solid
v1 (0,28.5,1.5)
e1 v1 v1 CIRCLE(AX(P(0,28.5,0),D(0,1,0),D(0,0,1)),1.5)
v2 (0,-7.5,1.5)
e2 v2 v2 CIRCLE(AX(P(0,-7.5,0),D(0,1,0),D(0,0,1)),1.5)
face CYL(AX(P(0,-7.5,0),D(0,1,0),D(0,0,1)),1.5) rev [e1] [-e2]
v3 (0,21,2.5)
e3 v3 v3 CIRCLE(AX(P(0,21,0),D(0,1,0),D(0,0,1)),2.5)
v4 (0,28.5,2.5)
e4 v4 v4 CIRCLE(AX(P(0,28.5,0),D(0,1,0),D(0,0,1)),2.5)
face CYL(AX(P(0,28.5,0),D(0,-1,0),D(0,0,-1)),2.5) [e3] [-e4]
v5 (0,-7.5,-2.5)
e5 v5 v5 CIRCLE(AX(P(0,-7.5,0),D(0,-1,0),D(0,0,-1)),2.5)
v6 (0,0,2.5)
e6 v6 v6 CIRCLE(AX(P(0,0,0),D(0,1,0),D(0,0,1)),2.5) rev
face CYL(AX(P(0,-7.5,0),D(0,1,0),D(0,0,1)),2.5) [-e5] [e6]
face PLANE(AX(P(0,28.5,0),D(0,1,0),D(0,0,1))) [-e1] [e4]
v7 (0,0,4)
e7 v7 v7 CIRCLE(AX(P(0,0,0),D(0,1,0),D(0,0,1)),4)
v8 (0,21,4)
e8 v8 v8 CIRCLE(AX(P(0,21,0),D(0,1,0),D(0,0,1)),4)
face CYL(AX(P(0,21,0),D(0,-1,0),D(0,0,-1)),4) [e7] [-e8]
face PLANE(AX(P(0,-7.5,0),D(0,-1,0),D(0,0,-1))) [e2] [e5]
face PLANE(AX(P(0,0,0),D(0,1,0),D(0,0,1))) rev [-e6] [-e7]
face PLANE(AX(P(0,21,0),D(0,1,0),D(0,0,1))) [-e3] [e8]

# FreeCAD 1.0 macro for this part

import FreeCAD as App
import Part
import Sketcher
Q = App.Units.Quantity

doc = App.newDocument("Part")
params = doc.addObject("Spreadsheet::Sheet", "Params")
for row, (alias, value) in enumerate([
    ("sketch1_diameter", "8 mm"),
    ("sketch1_diameter2", "2.5 mm"),
    ("pad1_length", "21 mm"),
    ("sketch2_diameter", "5 mm"),
    ("pad2_length", "7.5 mm"),
    ("sketch3_diameter", "5 mm"),
    ("pad3_length", "7.5 mm"),
    ("sketch4_diameter", "3 mm"),
], start=1):
    params.set(f"A{row}", alias)
    params.set(f"B{row}", "=" + value)
    params.setAlias(f"B{row}", alias)

body = doc.addObject("PartDesign::Body", "Body")

sketch1 = body.newObject("Sketcher::SketchObject", "Sketch")
sketch1.AttachmentSupport = (doc.getObject("XZ_Plane"), [""])
sketch1.MapMode = "FlatFace"
sketch1.addGeometry(Part.Circle(App.Vector(0, 0, 0), App.Vector(0, 0, 1), 4), False)
sketch1.addGeometry(Part.Circle(App.Vector(0, 0, 0), App.Vector(0, 0, 1), 1.2), False)
sketch1.addConstraint(Sketcher.Constraint("Coincident", 0, 3, -1, 1))
sketch1.addConstraint(Sketcher.Constraint("Coincident", 1, 3, -1, 1))
sketch1.addConstraint(Sketcher.Constraint("Diameter", 0, Q("8 mm")))
sketch1.addConstraint(Sketcher.Constraint("Diameter", 1, Q("2.5 mm")))
sketch1.setExpression("Constraints[2]", "Params.sketch1_diameter")
sketch1.setExpression("Constraints[3]", "Params.sketch1_diameter2")
pad1 = body.newObject("PartDesign::Pad", "Pad")
pad1.Profile = sketch1
pad1.setExpression("Length", "Params.pad1_length")
pad1.Reversed = True

sketch2 = body.newObject("Sketcher::SketchObject", "Sketch001")
sketch2.AttachmentSupport = (doc.getObject("XZ_Plane"), [""])
sketch2.MapMode = "FlatFace"
sketch2.addGeometry(Part.Circle(App.Vector(0, 0, 0), App.Vector(0, 0, 1), 2.5), False)
sketch2.addConstraint(Sketcher.Constraint("Coincident", 0, 3, -1, 1))
sketch2.addConstraint(Sketcher.Constraint("Diameter", 0, Q("5 mm")))
sketch2.setExpression("Constraints[1]", "Params.sketch2_diameter")
pad2 = body.newObject("PartDesign::Pad", "Pad001")
pad2.Profile = sketch2
pad2.setExpression("Length", "Params.pad2_length")

sketch3 = body.newObject("Sketcher::SketchObject", "Sketch002")
sketch3.AttachmentSupport = (doc.getObject("XZ_Plane"), [""])
sketch3.MapMode = "FlatFace"
sketch3.AttachmentOffset = App.Placement(App.Vector(0, 0, -21), App.Rotation())
sketch3.addGeometry(Part.Circle(App.Vector(0, 0, 0), App.Vector(0, 0, 1), 2.5), False)
sketch3.addConstraint(Sketcher.Constraint("Coincident", 0, 3, -1, 1))
sketch3.addConstraint(Sketcher.Constraint("Diameter", 0, Q("5 mm")))
sketch3.setExpression("Constraints[1]", "Params.sketch3_diameter")
pad3 = body.newObject("PartDesign::Pad", "Pad002")
pad3.Profile = sketch3
pad3.setExpression("Length", "Params.pad3_length")
pad3.Reversed = True

sketch4 = body.newObject("Sketcher::SketchObject", "Sketch003")
sketch4.AttachmentSupport = (doc.getObject("XZ_Plane"), [""])
sketch4.MapMode = "FlatFace"
sketch4.AttachmentOffset = App.Placement(App.Vector(0, 0, -28.5), App.Rotation())
sketch4.addGeometry(Part.Circle(App.Vector(0, 0, 0), App.Vector(0, 0, 1), 1.5), False)
sketch4.addConstraint(Sketcher.Constraint("Coincident", 0, 3, -1, 1))
sketch4.addConstraint(Sketcher.Constraint("Diameter", 0, Q("3 mm")))
sketch4.setExpression("Constraints[1]", "Params.sketch4_diameter")
pocket1 = body.newObject("PartDesign::Pocket", "Pocket")
pocket1.Profile = sketch4
pocket1.Type = "ThroughAll"
pocket1.Reversed = True

doc.recompute()
